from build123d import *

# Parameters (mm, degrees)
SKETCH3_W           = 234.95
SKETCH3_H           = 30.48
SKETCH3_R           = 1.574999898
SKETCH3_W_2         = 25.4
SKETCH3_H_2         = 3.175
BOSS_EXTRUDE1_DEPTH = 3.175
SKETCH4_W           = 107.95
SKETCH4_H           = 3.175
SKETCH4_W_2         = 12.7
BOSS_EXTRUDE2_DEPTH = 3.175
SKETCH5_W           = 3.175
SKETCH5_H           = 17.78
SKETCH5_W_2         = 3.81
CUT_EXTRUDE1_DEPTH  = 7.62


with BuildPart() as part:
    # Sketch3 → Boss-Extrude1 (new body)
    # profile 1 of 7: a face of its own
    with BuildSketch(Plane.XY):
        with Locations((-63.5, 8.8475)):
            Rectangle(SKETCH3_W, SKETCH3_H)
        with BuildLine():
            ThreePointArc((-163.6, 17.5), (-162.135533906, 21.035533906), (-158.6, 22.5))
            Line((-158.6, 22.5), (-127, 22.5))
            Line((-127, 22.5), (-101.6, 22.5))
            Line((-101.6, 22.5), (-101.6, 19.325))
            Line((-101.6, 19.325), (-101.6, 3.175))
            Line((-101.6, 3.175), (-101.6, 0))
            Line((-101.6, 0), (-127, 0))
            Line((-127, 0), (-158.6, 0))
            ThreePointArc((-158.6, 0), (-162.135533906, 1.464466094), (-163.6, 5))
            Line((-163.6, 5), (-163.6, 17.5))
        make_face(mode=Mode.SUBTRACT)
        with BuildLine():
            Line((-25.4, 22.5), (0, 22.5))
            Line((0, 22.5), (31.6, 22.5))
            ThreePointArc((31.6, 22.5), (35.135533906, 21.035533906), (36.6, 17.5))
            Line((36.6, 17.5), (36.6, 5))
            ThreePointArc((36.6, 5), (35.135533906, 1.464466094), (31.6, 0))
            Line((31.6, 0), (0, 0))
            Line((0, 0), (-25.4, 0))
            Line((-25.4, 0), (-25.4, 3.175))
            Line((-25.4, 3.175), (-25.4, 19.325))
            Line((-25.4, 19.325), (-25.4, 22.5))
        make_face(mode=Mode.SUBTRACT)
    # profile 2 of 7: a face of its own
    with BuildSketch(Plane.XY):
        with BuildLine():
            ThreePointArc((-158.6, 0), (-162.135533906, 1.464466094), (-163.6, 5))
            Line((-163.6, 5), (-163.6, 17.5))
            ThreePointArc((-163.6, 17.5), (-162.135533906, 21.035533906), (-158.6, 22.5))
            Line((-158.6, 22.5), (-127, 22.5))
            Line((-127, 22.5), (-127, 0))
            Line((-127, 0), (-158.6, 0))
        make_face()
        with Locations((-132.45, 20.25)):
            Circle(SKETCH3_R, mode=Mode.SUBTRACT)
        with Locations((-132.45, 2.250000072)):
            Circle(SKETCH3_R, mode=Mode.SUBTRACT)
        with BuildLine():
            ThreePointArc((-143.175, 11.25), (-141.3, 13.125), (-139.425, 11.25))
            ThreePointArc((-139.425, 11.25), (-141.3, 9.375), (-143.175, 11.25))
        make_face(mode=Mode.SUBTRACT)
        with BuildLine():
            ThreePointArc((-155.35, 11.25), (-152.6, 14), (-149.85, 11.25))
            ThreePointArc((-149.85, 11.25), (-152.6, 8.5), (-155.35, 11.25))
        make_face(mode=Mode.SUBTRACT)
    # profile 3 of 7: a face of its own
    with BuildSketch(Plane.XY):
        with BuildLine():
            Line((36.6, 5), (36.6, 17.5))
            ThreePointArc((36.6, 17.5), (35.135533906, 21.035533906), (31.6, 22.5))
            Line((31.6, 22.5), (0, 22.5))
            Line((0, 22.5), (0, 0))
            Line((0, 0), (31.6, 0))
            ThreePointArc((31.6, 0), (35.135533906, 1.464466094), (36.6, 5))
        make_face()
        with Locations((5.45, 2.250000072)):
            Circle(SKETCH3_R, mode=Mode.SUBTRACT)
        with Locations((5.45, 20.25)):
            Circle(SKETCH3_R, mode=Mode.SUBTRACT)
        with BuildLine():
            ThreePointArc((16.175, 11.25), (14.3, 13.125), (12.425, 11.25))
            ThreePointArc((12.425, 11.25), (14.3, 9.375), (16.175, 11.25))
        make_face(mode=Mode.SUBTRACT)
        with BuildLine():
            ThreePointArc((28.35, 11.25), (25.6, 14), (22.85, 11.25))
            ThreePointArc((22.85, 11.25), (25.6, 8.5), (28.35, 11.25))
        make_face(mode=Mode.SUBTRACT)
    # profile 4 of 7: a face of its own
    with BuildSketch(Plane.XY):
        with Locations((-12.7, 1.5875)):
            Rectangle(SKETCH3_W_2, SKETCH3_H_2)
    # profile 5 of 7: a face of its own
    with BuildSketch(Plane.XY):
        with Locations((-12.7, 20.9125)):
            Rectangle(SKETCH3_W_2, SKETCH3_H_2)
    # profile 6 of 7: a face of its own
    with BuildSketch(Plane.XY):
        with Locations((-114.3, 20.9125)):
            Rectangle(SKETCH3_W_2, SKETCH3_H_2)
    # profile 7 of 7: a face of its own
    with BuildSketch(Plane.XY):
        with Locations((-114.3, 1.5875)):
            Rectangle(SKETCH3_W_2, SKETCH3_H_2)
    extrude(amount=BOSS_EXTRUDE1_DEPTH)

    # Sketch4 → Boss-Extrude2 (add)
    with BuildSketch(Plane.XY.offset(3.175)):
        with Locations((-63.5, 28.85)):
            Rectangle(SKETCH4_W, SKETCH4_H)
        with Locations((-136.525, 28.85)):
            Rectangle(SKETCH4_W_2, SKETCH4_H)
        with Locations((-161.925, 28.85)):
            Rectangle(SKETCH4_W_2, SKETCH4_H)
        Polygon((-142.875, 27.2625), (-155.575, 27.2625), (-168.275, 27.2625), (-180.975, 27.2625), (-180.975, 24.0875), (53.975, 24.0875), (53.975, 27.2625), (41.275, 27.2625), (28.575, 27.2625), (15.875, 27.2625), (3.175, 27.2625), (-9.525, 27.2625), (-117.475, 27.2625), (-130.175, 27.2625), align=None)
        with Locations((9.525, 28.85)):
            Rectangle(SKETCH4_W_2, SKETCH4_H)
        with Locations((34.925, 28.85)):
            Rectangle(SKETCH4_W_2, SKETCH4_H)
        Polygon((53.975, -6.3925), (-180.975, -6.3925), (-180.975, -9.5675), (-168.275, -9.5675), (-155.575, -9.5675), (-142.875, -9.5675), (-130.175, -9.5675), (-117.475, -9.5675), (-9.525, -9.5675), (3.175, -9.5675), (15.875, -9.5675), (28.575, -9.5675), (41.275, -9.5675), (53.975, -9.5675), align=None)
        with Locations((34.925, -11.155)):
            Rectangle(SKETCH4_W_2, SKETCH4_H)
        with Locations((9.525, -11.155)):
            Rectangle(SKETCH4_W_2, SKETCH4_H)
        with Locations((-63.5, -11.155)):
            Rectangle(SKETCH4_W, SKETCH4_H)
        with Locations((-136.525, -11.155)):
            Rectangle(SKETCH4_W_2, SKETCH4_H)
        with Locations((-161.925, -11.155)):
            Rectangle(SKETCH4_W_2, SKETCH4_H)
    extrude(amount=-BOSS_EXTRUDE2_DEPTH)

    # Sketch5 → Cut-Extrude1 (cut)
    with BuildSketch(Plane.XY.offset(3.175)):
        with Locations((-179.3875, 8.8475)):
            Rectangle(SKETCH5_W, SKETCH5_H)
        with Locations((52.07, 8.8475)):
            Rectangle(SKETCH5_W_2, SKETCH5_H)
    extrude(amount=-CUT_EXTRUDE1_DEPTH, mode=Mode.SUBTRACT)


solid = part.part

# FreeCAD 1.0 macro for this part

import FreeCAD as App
import Part
import Sketcher
from FreeCAD import Vector
Q = App.Units.Quantity

doc = App.newDocument("Part")
body = doc.addObject("PartDesign::Body", "Body")

# Sketch on XY plane
sketch1 = body.newObject("Sketcher::SketchObject", "Sketch")
sketch1.AttachmentSupport = (doc.getObject("XY_Plane"), [""])
sketch1.MapMode = "FlatFace"
sketch1.addGeometry([
    Part.LineSegment(Vector(-181, 24.1, 0), Vector(-181, -6.4, 0)),  # 0
    Part.LineSegment(Vector(-181, -6.4, 0), Vector(54, -6.4, 0)),  # 1
    Part.LineSegment(Vector(54, -6.4, 0), Vector(54, 24.1, 0)),  # 2
    Part.LineSegment(Vector(54, 24.1, 0), Vector(-181, 24.1, 0)),  # 3
    Part.LineSegment(Vector(-101.6, 19.3, 0), Vector(-101.6, 3.2, 0)),  # 4
    Part.LineSegment(Vector(-101.6, 3.2, 0), Vector(-127, 3.2, 0)),  # 5
    Part.LineSegment(Vector(-127, 3.2, 0), Vector(-127, 19.3, 0)),  # 6
    Part.LineSegment(Vector(-127, 19.3, 0), Vector(-101.6, 19.3, 0)),  # 7
    Part.LineSegment(Vector(-25.4, 3.2, 0), Vector(-25.4, 19.3, 0)),  # 8
    Part.LineSegment(Vector(-25.4, 19.3, 0), Vector(0, 19.3, 0)),  # 9
    Part.LineSegment(Vector(0, 19.3, 0), Vector(0, 3.2, 0)),  # 10
    Part.LineSegment(Vector(0, 3.2, 0), Vector(-25.4, 3.2, 0)),  # 11
    Part.Circle(Vector(-152.6, 11.2, 0), Vector(0, 0, 1), 2.8),  # 12
    Part.Circle(Vector(-132.4, 2.3, 0), Vector(0, 0, 1), 1.6),  # 13
    Part.Circle(Vector(-132.4, 20.2, 0), Vector(0, 0, 1), 1.6),  # 14
    Part.Circle(Vector(-141.3, 11.2, 0), Vector(0, 0, 1), 1.9),  # 15
    Part.Circle(Vector(14.3, 11.2, 0), Vector(0, 0, 1), 1.9),  # 16
    Part.Circle(Vector(25.6, 11.2, 0), Vector(0, 0, 1), 2.8),  # 17
    Part.Circle(Vector(5.5, 2.3, 0), Vector(0, 0, 1), 1.6),  # 18
    Part.Circle(Vector(5.5, 20.2, 0), Vector(0, 0, 1), 1.6),  # 19
], False)
sketch1.addConstraint([
    Sketcher.Constraint("Coincident", 0, 2, 1, 1),
    Sketcher.Constraint("Coincident", 1, 2, 2, 1),
    Sketcher.Constraint("Coincident", 2, 2, 3, 1),
    Sketcher.Constraint("Coincident", 3, 2, 0, 1),
    Sketcher.Constraint("Coincident", 4, 2, 5, 1),
    Sketcher.Constraint("Coincident", 5, 2, 6, 1),
    Sketcher.Constraint("Coincident", 6, 2, 7, 1),
    Sketcher.Constraint("Coincident", 7, 2, 4, 1),
    Sketcher.Constraint("Coincident", 8, 2, 9, 1),
    Sketcher.Constraint("Coincident", 9, 2, 10, 1),
    Sketcher.Constraint("Coincident", 10, 2, 11, 1),
    Sketcher.Constraint("Coincident", 11, 2, 8, 1),
    Sketcher.Constraint("Vertical", 0),
    Sketcher.Constraint("Horizontal", 1),
    Sketcher.Constraint("Vertical", 2),
    Sketcher.Constraint("Horizontal", 3),
    Sketcher.Constraint("Vertical", 4),
    Sketcher.Constraint("Horizontal", 5),
    Sketcher.Constraint("Vertical", 6),
    Sketcher.Constraint("Horizontal", 7),
    Sketcher.Constraint("Vertical", 8),
    Sketcher.Constraint("Horizontal", 9),
    Sketcher.Constraint("Vertical", 10),
    Sketcher.Constraint("Horizontal", 11),
    Sketcher.Constraint("Equal", 13, 14),
    Sketcher.Constraint("Equal", 15, 16),
    Sketcher.Constraint("Equal", 12, 17),
    Sketcher.Constraint("Equal", 14, 18),
    Sketcher.Constraint("Equal", 18, 19),
    Sketcher.Constraint("PointOnObject", 9, 2, -2),
    Sketcher.Constraint("Horizontal", 12, 3, 15, 3),
    Sketcher.Constraint("Horizontal", 15, 3, 16, 3),
    Sketcher.Constraint("Horizontal", 16, 3, 17, 3),
    Sketcher.Constraint("Horizontal", 13, 3, 18, 3),
    Sketcher.Constraint("Horizontal", 14, 3, 19, 3),
    Sketcher.Constraint("Horizontal", 7, 2, 8, 2),
    Sketcher.Constraint("Horizontal", 5, 2, 10, 2),
    Sketcher.Constraint("Vertical", 13, 3, 14, 3),
    Sketcher.Constraint("Vertical", 18, 3, 19, 3),
    Sketcher.Constraint("Equal", 7, 9),
    Sketcher.Constraint("DistanceX", 5, 2, 5, 1, Q("1 in")),
    Sketcher.Constraint("DistanceY", 0, 2, 0, 1, Q("1.2 in")),
    Sketcher.Constraint("DistanceX", 4, 2, -1, 1, Q("4 in")),
    Sketcher.Constraint("DistanceX", 1, 1, 1, 2, Q("9.25 in")),
    Sketcher.Constraint("Diameter", 12, 5.5),
    Sketcher.Constraint("Diameter", 13, 3.15),
    Sketcher.Constraint("Diameter", 15, 3.75),
    Sketcher.Constraint("DistanceX", 0, 2, -1, 1, Q("7.125 in")),
    Sketcher.Constraint("DistanceY", -1, 1, 4, 2, Q("0.125 in")),
    Sketcher.Constraint("DistanceY", 4, 2, 4, 1, 16.15),
    Sketcher.Constraint("DistanceX", 12, 3, -1, 1, 152.6),
    Sketcher.Constraint("DistanceY", -1, 1, 12, 3, 11.25),
    Sketcher.Constraint("DistanceX", 13, 3, -1, 1, 132.45),
    Sketcher.Constraint("DistanceY", -1, 1, 13, 3, 2.25),
    Sketcher.Constraint("DistanceY", -1, 1, 14, 3, 20.25),
    Sketcher.Constraint("DistanceX", 15, 3, -1, 1, 141.3),
    Sketcher.Constraint("DistanceX", -1, 1, 16, 3, 14.3),
    Sketcher.Constraint("DistanceX", -1, 1, 17, 3, 25.6),
    Sketcher.Constraint("DistanceX", -1, 1, 18, 3, 5.45),
    Sketcher.Constraint("DistanceY", 0, 2, -1, 1, 6.3925),
])
pad1 = body.newObject("PartDesign::Pad", "Pad")
pad1.Profile = sketch1
pad1.Length = Q("0.125 in")

# Sketch on XY plane
sketch2 = body.newObject("Sketcher::SketchObject", "Sketch001")
sketch2.AttachmentSupport = (doc.getObject("XY_Plane"), [""])
sketch2.MapMode = "FlatFace"
sketch2.AttachmentOffset = App.Placement(Vector(0, 0, 0.125 * 25.4), App.Rotation())
sketch2.addGeometry([
    Part.LineSegment(Vector(-117.5, 30.4, 0), Vector(-117.5, 27.3, 0)),  # 0
    Part.LineSegment(Vector(-117.5, 27.3, 0), Vector(-130.2, 27.3, 0)),  # 1
    Part.LineSegment(Vector(-130.2, 27.3, 0), Vector(-130.2, 30.4, 0)),  # 2
    Part.LineSegment(Vector(-130.2, 30.4, 0), Vector(-142.9, 30.4, 0)),  # 3
    Part.LineSegment(Vector(-142.9, 30.4, 0), Vector(-142.9, 27.3, 0)),  # 4
    Part.LineSegment(Vector(-142.9, 27.3, 0), Vector(-155.6, 27.3, 0)),  # 5
    Part.LineSegment(Vector(-155.6, 27.3, 0), Vector(-155.6, 30.4, 0)),  # 6
    Part.LineSegment(Vector(-155.6, 30.4, 0), Vector(-168.3, 30.4, 0)),  # 7
    Part.LineSegment(Vector(-168.3, 30.4, 0), Vector(-168.3, 27.3, 0)),  # 8
    Part.LineSegment(Vector(-168.3, 27.3, 0), Vector(-181, 27.3, 0)),  # 9
    Part.LineSegment(Vector(-181, 27.3, 0), Vector(-181, 24.1, 0)),  # 10
    Part.LineSegment(Vector(-181, 24.1, 0), Vector(54, 24.1, 0)),  # 11
    Part.LineSegment(Vector(54, 24.1, 0), Vector(54, 27.3, 0)),  # 12
    Part.LineSegment(Vector(54, 27.3, 0), Vector(41.3, 27.3, 0)),  # 13
    Part.LineSegment(Vector(41.3, 27.3, 0), Vector(41.3, 30.4, 0)),  # 14
    Part.LineSegment(Vector(41.3, 30.4, 0), Vector(28.6, 30.4, 0)),  # 15
    Part.LineSegment(Vector(28.6, 30.4, 0), Vector(28.6, 27.3, 0)),  # 16
    Part.LineSegment(Vector(28.6, 27.3, 0), Vector(15.9, 27.3, 0)),  # 17
    Part.LineSegment(Vector(15.9, 27.3, 0), Vector(15.9, 30.4, 0)),  # 18
    Part.LineSegment(Vector(15.9, 30.4, 0), Vector(3.2, 30.4, 0)),  # 19
    Part.LineSegment(Vector(3.2, 30.4, 0), Vector(3.2, 27.3, 0)),  # 20
    Part.LineSegment(Vector(3.2, 27.3, 0), Vector(-9.5, 27.3, 0)),  # 21
    Part.LineSegment(Vector(-9.5, 27.3, 0), Vector(-9.5, 30.4, 0)),  # 22
    Part.LineSegment(Vector(-9.5, 30.4, 0), Vector(-117.5, 30.4, 0)),  # 23
    Part.LineSegment(Vector(54, -6.4, 0), Vector(-181, -6.4, 0)),  # 24
    Part.LineSegment(Vector(-181, -6.4, 0), Vector(-181, -9.6, 0)),  # 25
    Part.LineSegment(Vector(-181, -9.6, 0), Vector(-168.3, -9.6, 0)),  # 26
    Part.LineSegment(Vector(-168.3, -9.6, 0), Vector(-168.3, -12.7, 0)),  # 27
    Part.LineSegment(Vector(-168.3, -12.7, 0), Vector(-155.6, -12.7, 0)),  # 28
    Part.LineSegment(Vector(-155.6, -12.7, 0), Vector(-155.6, -9.6, 0)),  # 29
    Part.LineSegment(Vector(-155.6, -9.6, 0), Vector(-142.9, -9.6, 0)),  # 30
    Part.LineSegment(Vector(-142.9, -9.6, 0), Vector(-142.9, -12.7, 0)),  # 31
    Part.LineSegment(Vector(-142.9, -12.7, 0), Vector(-130.2, -12.7, 0)),  # 32
    Part.LineSegment(Vector(-130.2, -12.7, 0), Vector(-130.2, -9.6, 0)),  # 33
    Part.LineSegment(Vector(-130.2, -9.6, 0), Vector(-117.5, -9.6, 0)),  # 34
    Part.LineSegment(Vector(-117.5, -9.6, 0), Vector(-117.5, -12.7, 0)),  # 35
    Part.LineSegment(Vector(-117.5, -12.7, 0), Vector(-9.5, -12.7, 0)),  # 36
    Part.LineSegment(Vector(-9.5, -12.7, 0), Vector(-9.5, -9.6, 0)),  # 37
    Part.LineSegment(Vector(-9.5, -9.6, 0), Vector(3.2, -9.6, 0)),  # 38
    Part.LineSegment(Vector(3.2, -9.6, 0), Vector(3.2, -12.7, 0)),  # 39
    Part.LineSegment(Vector(3.2, -12.7, 0), Vector(15.9, -12.7, 0)),  # 40
    Part.LineSegment(Vector(15.9, -12.7, 0), Vector(15.9, -9.6, 0)),  # 41
    Part.LineSegment(Vector(15.9, -9.6, 0), Vector(28.6, -9.6, 0)),  # 42
    Part.LineSegment(Vector(28.6, -9.6, 0), Vector(28.6, -12.7, 0)),  # 43
    Part.LineSegment(Vector(28.6, -12.7, 0), Vector(41.3, -12.7, 0)),  # 44
    Part.LineSegment(Vector(41.3, -12.7, 0), Vector(41.3, -9.6, 0)),  # 45
    Part.LineSegment(Vector(41.3, -9.6, 0), Vector(54, -9.6, 0)),  # 46
    Part.LineSegment(Vector(54, -9.6, 0), Vector(54, -6.4, 0)),  # 47
], False)
sketch2.addConstraint([
    Sketcher.Constraint("Coincident", 0, 2, 1, 1),
    Sketcher.Constraint("Coincident", 1, 2, 2, 1),
    Sketcher.Constraint("Coincident", 2, 2, 3, 1),
    Sketcher.Constraint("Coincident", 3, 2, 4, 1),
    Sketcher.Constraint("Coincident", 4, 2, 5, 1),
    Sketcher.Constraint("Coincident", 5, 2, 6, 1),
    Sketcher.Constraint("Coincident", 6, 2, 7, 1),
    Sketcher.Constraint("Coincident", 7, 2, 8, 1),
    Sketcher.Constraint("Coincident", 8, 2, 9, 1),
    Sketcher.Constraint("Coincident", 9, 2, 10, 1),
    Sketcher.Constraint("Coincident", 10, 2, 11, 1),
    Sketcher.Constraint("Coincident", 11, 2, 12, 1),
    Sketcher.Constraint("Coincident", 12, 2, 13, 1),
    Sketcher.Constraint("Coincident", 13, 2, 14, 1),
    Sketcher.Constraint("Coincident", 14, 2, 15, 1),
    Sketcher.Constraint("Coincident", 15, 2, 16, 1),
    Sketcher.Constraint("Coincident", 16, 2, 17, 1),
    Sketcher.Constraint("Coincident", 17, 2, 18, 1),
    Sketcher.Constraint("Coincident", 18, 2, 19, 1),
    Sketcher.Constraint("Coincident", 19, 2, 20, 1),
    Sketcher.Constraint("Coincident", 20, 2, 21, 1),
    Sketcher.Constraint("Coincident", 21, 2, 22, 1),
    Sketcher.Constraint("Coincident", 22, 2, 23, 1),
    Sketcher.Constraint("Coincident", 23, 2, 0, 1),
    Sketcher.Constraint("Coincident", 24, 2, 25, 1),
    Sketcher.Constraint("Coincident", 25, 2, 26, 1),
    Sketcher.Constraint("Coincident", 26, 2, 27, 1),
    Sketcher.Constraint("Coincident", 27, 2, 28, 1),
    Sketcher.Constraint("Coincident", 28, 2, 29, 1),
    Sketcher.Constraint("Coincident", 29, 2, 30, 1),
    Sketcher.Constraint("Coincident", 30, 2, 31, 1),
    Sketcher.Constraint("Coincident", 31, 2, 32, 1),
    Sketcher.Constraint("Coincident", 32, 2, 33, 1),
    Sketcher.Constraint("Coincident", 33, 2, 34, 1),
    Sketcher.Constraint("Coincident", 34, 2, 35, 1),
    Sketcher.Constraint("Coincident", 35, 2, 36, 1),
    Sketcher.Constraint("Coincident", 36, 2, 37, 1),
    Sketcher.Constraint("Coincident", 37, 2, 38, 1),
    Sketcher.Constraint("Coincident", 38, 2, 39, 1),
    Sketcher.Constraint("Coincident", 39, 2, 40, 1),
    Sketcher.Constraint("Coincident", 40, 2, 41, 1),
    Sketcher.Constraint("Coincident", 41, 2, 42, 1),
    Sketcher.Constraint("Coincident", 42, 2, 43, 1),
    Sketcher.Constraint("Coincident", 43, 2, 44, 1),
    Sketcher.Constraint("Coincident", 44, 2, 45, 1),
    Sketcher.Constraint("Coincident", 45, 2, 46, 1),
    Sketcher.Constraint("Coincident", 46, 2, 47, 1),
    Sketcher.Constraint("Coincident", 47, 2, 24, 1),
    Sketcher.Constraint("Vertical", 0),
    Sketcher.Constraint("Horizontal", 1),
    Sketcher.Constraint("Vertical", 2),
    Sketcher.Constraint("Horizontal", 3),
    Sketcher.Constraint("Vertical", 4),
    Sketcher.Constraint("Horizontal", 5),
    Sketcher.Constraint("Vertical", 6),
    Sketcher.Constraint("Horizontal", 7),
    Sketcher.Constraint("Vertical", 8),
    Sketcher.Constraint("Horizontal", 9),
    Sketcher.Constraint("Vertical", 10),
    Sketcher.Constraint("Horizontal", 11),
    Sketcher.Constraint("Vertical", 12),
    Sketcher.Constraint("Horizontal", 13),
    Sketcher.Constraint("Vertical", 14),
    Sketcher.Constraint("Horizontal", 15),
    Sketcher.Constraint("Vertical", 16),
    Sketcher.Constraint("Horizontal", 17),
    Sketcher.Constraint("Vertical", 18),
    Sketcher.Constraint("Horizontal", 19),
    Sketcher.Constraint("Vertical", 20),
    Sketcher.Constraint("Horizontal", 21),
    Sketcher.Constraint("Vertical", 22),
    Sketcher.Constraint("Horizontal", 23),
    Sketcher.Constraint("Horizontal", 24),
    Sketcher.Constraint("Vertical", 25),
    Sketcher.Constraint("Horizontal", 26),
    Sketcher.Constraint("Vertical", 27),
    Sketcher.Constraint("Horizontal", 28),
    Sketcher.Constraint("Vertical", 29),
    Sketcher.Constraint("Horizontal", 30),
    Sketcher.Constraint("Vertical", 31),
    Sketcher.Constraint("Horizontal", 32),
    Sketcher.Constraint("Vertical", 33),
    Sketcher.Constraint("Horizontal", 34),
    Sketcher.Constraint("Vertical", 35),
    Sketcher.Constraint("Horizontal", 36),
    Sketcher.Constraint("Vertical", 37),
    Sketcher.Constraint("Horizontal", 38),
    Sketcher.Constraint("Vertical", 39),
    Sketcher.Constraint("Horizontal", 40),
    Sketcher.Constraint("Vertical", 41),
    Sketcher.Constraint("Horizontal", 42),
    Sketcher.Constraint("Vertical", 43),
    Sketcher.Constraint("Horizontal", 44),
    Sketcher.Constraint("Vertical", 45),
    Sketcher.Constraint("Horizontal", 46),
    Sketcher.Constraint("Vertical", 47),
    Sketcher.Constraint("Horizontal", 1, 2, 4, 2),
    Sketcher.Constraint("Horizontal", 3, 2, 6, 2),
    Sketcher.Constraint("Horizontal", 5, 2, 8, 2),
    Sketcher.Constraint("Horizontal", 9, 2, 12, 2),
    Sketcher.Constraint("Horizontal", 7, 2, 14, 2),
    Sketcher.Constraint("Horizontal", 13, 2, 16, 2),
    Sketcher.Constraint("Horizontal", 15, 2, 18, 2),
    Sketcher.Constraint("Horizontal", 17, 2, 20, 2),
    Sketcher.Constraint("Horizontal", 19, 2, 22, 2),
    Sketcher.Constraint("Horizontal", 26, 2, 29, 2),
    Sketcher.Constraint("Horizontal", 28, 2, 31, 2),
    Sketcher.Constraint("Horizontal", 30, 2, 33, 2),
    Sketcher.Constraint("Horizontal", 32, 2, 35, 2),
    Sketcher.Constraint("Horizontal", 34, 2, 37, 2),
    Sketcher.Constraint("Horizontal", 36, 2, 39, 2),
    Sketcher.Constraint("Horizontal", 38, 2, 41, 2),
    Sketcher.Constraint("Horizontal", 40, 2, 43, 2),
    Sketcher.Constraint("Horizontal", 42, 2, 45, 2),
    Sketcher.Constraint("Vertical", 10, 2, 24, 2),
    Sketcher.Constraint("Vertical", 8, 2, 26, 2),
    Sketcher.Constraint("Vertical", 6, 2, 28, 2),
    Sketcher.Constraint("Vertical", 4, 2, 30, 2),
    Sketcher.Constraint("Vertical", 2, 2, 32, 2),
    Sketcher.Constraint("Vertical", 23, 2, 34, 2),
    Sketcher.Constraint("Vertical", 22, 2, 36, 2),
    Sketcher.Constraint("Vertical", 20, 2, 38, 2),
    Sketcher.Constraint("Vertical", 18, 2, 40, 2),
    Sketcher.Constraint("Vertical", 16, 2, 42, 2),
    Sketcher.Constraint("Vertical", 14, 2, 44, 2),
    Sketcher.Constraint("Vertical", 12, 2, 46, 2),
    Sketcher.Constraint("Equal", 1, 3),
    Sketcher.Constraint("Equal", 3, 5),
    Sketcher.Constraint("Equal", 5, 7),
    Sketcher.Constraint("Equal", 7, 9),
    Sketcher.Constraint("Equal", 9, 13),
    Sketcher.Constraint("Equal", 13, 15),
    Sketcher.Constraint("Equal", 15, 17),
    Sketcher.Constraint("Equal", 17, 19),
    Sketcher.Constraint("Equal", 19, 21),
    Sketcher.Constraint("Equal", 8, 10),
    Sketcher.Constraint("Equal", 22, 25),
    Sketcher.Constraint("Equal", 25, 27),
    Sketcher.Constraint("DistanceX", 1, 2, 1, 1, Q("0.5 in")),
    Sketcher.Constraint("DistanceX", 11, 1, 11, 2, Q("9.25 in")),
    Sketcher.Constraint("DistanceY", 24, 2, 10, 2, Q("1.2 in")),
    Sketcher.Constraint("DistanceY", 36, 2, 22, 2, Q("1.7 in")),
    Sketcher.Constraint("DistanceX", 0, 2, -1, 1, Q("4.625 in")),
    Sketcher.Constraint("DistanceY", -1, 1, 0, 2, 27.2625),
])
pad2 = body.newObject("PartDesign::Pad", "Pad001")
pad2.Profile = sketch2
pad2.Length = Q("0.125 in")
pad2.Reversed = True

# Sketch on XY plane
sketch3 = body.newObject("Sketcher::SketchObject", "Sketch002")
sketch3.AttachmentSupport = (doc.getObject("XY_Plane"), [""])
sketch3.MapMode = "FlatFace"
sketch3.AttachmentOffset = App.Placement(Vector(0, 0, 0.125 * 25.4), App.Rotation())
sketch3.addGeometry([
    Part.LineSegment(Vector(-181, 17.7, 0), Vector(-181, 0, 0)),  # 0
    Part.LineSegment(Vector(-181, 0, 0), Vector(-177.8, 0, 0)),  # 1
    Part.LineSegment(Vector(-177.8, 0, 0), Vector(-177.8, 17.7, 0)),  # 2
    Part.LineSegment(Vector(-177.8, 17.7, 0), Vector(-181, 17.7, 0)),  # 3
    Part.LineSegment(Vector(50.2, 17.7, 0), Vector(50.2, 0, 0)),  # 4
    Part.LineSegment(Vector(50.2, 0, 0), Vector(54, 0, 0)),  # 5
    Part.LineSegment(Vector(54, 0, 0), Vector(54, 17.7, 0)),  # 6
    Part.LineSegment(Vector(54, 17.7, 0), Vector(50.2, 17.7, 0)),  # 7
], False)
sketch3.addConstraint([
    Sketcher.Constraint("Coincident", 0, 2, 1, 1),
    Sketcher.Constraint("Coincident", 1, 2, 2, 1),
    Sketcher.Constraint("Coincident", 2, 2, 3, 1),
    Sketcher.Constraint("Coincident", 3, 2, 0, 1),
    Sketcher.Constraint("Coincident", 4, 2, 5, 1),
    Sketcher.Constraint("Coincident", 5, 2, 6, 1),
    Sketcher.Constraint("Coincident", 6, 2, 7, 1),
    Sketcher.Constraint("Coincident", 7, 2, 4, 1),
    Sketcher.Constraint("Vertical", 0),
    Sketcher.Constraint("Horizontal", 1),
    Sketcher.Constraint("Vertical", 2),
    Sketcher.Constraint("Horizontal", 3),
    Sketcher.Constraint("Vertical", 4),
    Sketcher.Constraint("Horizontal", 5),
    Sketcher.Constraint("Vertical", 6),
    Sketcher.Constraint("Horizontal", 7),
    Sketcher.Constraint("Horizontal", 1, 2, 4, 2),
    Sketcher.Constraint("Horizontal", 3, 2, 6, 2),
    Sketcher.Constraint("DistanceY", 0, 2, 0, 1, Q("0.7 in")),
    Sketcher.Constraint("DistanceX", 1, 2, -1, 1, Q("7 in")),
    Sketcher.Constraint("DistanceX", 5, 1, 5, 2, Q("0.15 in")),
    Sketcher.Constraint("DistanceX", 0, 2, 4, 2, Q("9.1 in")),
    Sketcher.Constraint("DistanceX", 1, 1, 1, 2, Q("0.125 in")),
    Sketcher.Constraint("DistanceY", 0, 2, -1, 1, 0.0425),
])
pocket1 = body.newObject("PartDesign::Pocket", "Pocket")
pocket1.Profile = sketch3
pocket1.Length = Q("0.3 in")

doc.recompute()
